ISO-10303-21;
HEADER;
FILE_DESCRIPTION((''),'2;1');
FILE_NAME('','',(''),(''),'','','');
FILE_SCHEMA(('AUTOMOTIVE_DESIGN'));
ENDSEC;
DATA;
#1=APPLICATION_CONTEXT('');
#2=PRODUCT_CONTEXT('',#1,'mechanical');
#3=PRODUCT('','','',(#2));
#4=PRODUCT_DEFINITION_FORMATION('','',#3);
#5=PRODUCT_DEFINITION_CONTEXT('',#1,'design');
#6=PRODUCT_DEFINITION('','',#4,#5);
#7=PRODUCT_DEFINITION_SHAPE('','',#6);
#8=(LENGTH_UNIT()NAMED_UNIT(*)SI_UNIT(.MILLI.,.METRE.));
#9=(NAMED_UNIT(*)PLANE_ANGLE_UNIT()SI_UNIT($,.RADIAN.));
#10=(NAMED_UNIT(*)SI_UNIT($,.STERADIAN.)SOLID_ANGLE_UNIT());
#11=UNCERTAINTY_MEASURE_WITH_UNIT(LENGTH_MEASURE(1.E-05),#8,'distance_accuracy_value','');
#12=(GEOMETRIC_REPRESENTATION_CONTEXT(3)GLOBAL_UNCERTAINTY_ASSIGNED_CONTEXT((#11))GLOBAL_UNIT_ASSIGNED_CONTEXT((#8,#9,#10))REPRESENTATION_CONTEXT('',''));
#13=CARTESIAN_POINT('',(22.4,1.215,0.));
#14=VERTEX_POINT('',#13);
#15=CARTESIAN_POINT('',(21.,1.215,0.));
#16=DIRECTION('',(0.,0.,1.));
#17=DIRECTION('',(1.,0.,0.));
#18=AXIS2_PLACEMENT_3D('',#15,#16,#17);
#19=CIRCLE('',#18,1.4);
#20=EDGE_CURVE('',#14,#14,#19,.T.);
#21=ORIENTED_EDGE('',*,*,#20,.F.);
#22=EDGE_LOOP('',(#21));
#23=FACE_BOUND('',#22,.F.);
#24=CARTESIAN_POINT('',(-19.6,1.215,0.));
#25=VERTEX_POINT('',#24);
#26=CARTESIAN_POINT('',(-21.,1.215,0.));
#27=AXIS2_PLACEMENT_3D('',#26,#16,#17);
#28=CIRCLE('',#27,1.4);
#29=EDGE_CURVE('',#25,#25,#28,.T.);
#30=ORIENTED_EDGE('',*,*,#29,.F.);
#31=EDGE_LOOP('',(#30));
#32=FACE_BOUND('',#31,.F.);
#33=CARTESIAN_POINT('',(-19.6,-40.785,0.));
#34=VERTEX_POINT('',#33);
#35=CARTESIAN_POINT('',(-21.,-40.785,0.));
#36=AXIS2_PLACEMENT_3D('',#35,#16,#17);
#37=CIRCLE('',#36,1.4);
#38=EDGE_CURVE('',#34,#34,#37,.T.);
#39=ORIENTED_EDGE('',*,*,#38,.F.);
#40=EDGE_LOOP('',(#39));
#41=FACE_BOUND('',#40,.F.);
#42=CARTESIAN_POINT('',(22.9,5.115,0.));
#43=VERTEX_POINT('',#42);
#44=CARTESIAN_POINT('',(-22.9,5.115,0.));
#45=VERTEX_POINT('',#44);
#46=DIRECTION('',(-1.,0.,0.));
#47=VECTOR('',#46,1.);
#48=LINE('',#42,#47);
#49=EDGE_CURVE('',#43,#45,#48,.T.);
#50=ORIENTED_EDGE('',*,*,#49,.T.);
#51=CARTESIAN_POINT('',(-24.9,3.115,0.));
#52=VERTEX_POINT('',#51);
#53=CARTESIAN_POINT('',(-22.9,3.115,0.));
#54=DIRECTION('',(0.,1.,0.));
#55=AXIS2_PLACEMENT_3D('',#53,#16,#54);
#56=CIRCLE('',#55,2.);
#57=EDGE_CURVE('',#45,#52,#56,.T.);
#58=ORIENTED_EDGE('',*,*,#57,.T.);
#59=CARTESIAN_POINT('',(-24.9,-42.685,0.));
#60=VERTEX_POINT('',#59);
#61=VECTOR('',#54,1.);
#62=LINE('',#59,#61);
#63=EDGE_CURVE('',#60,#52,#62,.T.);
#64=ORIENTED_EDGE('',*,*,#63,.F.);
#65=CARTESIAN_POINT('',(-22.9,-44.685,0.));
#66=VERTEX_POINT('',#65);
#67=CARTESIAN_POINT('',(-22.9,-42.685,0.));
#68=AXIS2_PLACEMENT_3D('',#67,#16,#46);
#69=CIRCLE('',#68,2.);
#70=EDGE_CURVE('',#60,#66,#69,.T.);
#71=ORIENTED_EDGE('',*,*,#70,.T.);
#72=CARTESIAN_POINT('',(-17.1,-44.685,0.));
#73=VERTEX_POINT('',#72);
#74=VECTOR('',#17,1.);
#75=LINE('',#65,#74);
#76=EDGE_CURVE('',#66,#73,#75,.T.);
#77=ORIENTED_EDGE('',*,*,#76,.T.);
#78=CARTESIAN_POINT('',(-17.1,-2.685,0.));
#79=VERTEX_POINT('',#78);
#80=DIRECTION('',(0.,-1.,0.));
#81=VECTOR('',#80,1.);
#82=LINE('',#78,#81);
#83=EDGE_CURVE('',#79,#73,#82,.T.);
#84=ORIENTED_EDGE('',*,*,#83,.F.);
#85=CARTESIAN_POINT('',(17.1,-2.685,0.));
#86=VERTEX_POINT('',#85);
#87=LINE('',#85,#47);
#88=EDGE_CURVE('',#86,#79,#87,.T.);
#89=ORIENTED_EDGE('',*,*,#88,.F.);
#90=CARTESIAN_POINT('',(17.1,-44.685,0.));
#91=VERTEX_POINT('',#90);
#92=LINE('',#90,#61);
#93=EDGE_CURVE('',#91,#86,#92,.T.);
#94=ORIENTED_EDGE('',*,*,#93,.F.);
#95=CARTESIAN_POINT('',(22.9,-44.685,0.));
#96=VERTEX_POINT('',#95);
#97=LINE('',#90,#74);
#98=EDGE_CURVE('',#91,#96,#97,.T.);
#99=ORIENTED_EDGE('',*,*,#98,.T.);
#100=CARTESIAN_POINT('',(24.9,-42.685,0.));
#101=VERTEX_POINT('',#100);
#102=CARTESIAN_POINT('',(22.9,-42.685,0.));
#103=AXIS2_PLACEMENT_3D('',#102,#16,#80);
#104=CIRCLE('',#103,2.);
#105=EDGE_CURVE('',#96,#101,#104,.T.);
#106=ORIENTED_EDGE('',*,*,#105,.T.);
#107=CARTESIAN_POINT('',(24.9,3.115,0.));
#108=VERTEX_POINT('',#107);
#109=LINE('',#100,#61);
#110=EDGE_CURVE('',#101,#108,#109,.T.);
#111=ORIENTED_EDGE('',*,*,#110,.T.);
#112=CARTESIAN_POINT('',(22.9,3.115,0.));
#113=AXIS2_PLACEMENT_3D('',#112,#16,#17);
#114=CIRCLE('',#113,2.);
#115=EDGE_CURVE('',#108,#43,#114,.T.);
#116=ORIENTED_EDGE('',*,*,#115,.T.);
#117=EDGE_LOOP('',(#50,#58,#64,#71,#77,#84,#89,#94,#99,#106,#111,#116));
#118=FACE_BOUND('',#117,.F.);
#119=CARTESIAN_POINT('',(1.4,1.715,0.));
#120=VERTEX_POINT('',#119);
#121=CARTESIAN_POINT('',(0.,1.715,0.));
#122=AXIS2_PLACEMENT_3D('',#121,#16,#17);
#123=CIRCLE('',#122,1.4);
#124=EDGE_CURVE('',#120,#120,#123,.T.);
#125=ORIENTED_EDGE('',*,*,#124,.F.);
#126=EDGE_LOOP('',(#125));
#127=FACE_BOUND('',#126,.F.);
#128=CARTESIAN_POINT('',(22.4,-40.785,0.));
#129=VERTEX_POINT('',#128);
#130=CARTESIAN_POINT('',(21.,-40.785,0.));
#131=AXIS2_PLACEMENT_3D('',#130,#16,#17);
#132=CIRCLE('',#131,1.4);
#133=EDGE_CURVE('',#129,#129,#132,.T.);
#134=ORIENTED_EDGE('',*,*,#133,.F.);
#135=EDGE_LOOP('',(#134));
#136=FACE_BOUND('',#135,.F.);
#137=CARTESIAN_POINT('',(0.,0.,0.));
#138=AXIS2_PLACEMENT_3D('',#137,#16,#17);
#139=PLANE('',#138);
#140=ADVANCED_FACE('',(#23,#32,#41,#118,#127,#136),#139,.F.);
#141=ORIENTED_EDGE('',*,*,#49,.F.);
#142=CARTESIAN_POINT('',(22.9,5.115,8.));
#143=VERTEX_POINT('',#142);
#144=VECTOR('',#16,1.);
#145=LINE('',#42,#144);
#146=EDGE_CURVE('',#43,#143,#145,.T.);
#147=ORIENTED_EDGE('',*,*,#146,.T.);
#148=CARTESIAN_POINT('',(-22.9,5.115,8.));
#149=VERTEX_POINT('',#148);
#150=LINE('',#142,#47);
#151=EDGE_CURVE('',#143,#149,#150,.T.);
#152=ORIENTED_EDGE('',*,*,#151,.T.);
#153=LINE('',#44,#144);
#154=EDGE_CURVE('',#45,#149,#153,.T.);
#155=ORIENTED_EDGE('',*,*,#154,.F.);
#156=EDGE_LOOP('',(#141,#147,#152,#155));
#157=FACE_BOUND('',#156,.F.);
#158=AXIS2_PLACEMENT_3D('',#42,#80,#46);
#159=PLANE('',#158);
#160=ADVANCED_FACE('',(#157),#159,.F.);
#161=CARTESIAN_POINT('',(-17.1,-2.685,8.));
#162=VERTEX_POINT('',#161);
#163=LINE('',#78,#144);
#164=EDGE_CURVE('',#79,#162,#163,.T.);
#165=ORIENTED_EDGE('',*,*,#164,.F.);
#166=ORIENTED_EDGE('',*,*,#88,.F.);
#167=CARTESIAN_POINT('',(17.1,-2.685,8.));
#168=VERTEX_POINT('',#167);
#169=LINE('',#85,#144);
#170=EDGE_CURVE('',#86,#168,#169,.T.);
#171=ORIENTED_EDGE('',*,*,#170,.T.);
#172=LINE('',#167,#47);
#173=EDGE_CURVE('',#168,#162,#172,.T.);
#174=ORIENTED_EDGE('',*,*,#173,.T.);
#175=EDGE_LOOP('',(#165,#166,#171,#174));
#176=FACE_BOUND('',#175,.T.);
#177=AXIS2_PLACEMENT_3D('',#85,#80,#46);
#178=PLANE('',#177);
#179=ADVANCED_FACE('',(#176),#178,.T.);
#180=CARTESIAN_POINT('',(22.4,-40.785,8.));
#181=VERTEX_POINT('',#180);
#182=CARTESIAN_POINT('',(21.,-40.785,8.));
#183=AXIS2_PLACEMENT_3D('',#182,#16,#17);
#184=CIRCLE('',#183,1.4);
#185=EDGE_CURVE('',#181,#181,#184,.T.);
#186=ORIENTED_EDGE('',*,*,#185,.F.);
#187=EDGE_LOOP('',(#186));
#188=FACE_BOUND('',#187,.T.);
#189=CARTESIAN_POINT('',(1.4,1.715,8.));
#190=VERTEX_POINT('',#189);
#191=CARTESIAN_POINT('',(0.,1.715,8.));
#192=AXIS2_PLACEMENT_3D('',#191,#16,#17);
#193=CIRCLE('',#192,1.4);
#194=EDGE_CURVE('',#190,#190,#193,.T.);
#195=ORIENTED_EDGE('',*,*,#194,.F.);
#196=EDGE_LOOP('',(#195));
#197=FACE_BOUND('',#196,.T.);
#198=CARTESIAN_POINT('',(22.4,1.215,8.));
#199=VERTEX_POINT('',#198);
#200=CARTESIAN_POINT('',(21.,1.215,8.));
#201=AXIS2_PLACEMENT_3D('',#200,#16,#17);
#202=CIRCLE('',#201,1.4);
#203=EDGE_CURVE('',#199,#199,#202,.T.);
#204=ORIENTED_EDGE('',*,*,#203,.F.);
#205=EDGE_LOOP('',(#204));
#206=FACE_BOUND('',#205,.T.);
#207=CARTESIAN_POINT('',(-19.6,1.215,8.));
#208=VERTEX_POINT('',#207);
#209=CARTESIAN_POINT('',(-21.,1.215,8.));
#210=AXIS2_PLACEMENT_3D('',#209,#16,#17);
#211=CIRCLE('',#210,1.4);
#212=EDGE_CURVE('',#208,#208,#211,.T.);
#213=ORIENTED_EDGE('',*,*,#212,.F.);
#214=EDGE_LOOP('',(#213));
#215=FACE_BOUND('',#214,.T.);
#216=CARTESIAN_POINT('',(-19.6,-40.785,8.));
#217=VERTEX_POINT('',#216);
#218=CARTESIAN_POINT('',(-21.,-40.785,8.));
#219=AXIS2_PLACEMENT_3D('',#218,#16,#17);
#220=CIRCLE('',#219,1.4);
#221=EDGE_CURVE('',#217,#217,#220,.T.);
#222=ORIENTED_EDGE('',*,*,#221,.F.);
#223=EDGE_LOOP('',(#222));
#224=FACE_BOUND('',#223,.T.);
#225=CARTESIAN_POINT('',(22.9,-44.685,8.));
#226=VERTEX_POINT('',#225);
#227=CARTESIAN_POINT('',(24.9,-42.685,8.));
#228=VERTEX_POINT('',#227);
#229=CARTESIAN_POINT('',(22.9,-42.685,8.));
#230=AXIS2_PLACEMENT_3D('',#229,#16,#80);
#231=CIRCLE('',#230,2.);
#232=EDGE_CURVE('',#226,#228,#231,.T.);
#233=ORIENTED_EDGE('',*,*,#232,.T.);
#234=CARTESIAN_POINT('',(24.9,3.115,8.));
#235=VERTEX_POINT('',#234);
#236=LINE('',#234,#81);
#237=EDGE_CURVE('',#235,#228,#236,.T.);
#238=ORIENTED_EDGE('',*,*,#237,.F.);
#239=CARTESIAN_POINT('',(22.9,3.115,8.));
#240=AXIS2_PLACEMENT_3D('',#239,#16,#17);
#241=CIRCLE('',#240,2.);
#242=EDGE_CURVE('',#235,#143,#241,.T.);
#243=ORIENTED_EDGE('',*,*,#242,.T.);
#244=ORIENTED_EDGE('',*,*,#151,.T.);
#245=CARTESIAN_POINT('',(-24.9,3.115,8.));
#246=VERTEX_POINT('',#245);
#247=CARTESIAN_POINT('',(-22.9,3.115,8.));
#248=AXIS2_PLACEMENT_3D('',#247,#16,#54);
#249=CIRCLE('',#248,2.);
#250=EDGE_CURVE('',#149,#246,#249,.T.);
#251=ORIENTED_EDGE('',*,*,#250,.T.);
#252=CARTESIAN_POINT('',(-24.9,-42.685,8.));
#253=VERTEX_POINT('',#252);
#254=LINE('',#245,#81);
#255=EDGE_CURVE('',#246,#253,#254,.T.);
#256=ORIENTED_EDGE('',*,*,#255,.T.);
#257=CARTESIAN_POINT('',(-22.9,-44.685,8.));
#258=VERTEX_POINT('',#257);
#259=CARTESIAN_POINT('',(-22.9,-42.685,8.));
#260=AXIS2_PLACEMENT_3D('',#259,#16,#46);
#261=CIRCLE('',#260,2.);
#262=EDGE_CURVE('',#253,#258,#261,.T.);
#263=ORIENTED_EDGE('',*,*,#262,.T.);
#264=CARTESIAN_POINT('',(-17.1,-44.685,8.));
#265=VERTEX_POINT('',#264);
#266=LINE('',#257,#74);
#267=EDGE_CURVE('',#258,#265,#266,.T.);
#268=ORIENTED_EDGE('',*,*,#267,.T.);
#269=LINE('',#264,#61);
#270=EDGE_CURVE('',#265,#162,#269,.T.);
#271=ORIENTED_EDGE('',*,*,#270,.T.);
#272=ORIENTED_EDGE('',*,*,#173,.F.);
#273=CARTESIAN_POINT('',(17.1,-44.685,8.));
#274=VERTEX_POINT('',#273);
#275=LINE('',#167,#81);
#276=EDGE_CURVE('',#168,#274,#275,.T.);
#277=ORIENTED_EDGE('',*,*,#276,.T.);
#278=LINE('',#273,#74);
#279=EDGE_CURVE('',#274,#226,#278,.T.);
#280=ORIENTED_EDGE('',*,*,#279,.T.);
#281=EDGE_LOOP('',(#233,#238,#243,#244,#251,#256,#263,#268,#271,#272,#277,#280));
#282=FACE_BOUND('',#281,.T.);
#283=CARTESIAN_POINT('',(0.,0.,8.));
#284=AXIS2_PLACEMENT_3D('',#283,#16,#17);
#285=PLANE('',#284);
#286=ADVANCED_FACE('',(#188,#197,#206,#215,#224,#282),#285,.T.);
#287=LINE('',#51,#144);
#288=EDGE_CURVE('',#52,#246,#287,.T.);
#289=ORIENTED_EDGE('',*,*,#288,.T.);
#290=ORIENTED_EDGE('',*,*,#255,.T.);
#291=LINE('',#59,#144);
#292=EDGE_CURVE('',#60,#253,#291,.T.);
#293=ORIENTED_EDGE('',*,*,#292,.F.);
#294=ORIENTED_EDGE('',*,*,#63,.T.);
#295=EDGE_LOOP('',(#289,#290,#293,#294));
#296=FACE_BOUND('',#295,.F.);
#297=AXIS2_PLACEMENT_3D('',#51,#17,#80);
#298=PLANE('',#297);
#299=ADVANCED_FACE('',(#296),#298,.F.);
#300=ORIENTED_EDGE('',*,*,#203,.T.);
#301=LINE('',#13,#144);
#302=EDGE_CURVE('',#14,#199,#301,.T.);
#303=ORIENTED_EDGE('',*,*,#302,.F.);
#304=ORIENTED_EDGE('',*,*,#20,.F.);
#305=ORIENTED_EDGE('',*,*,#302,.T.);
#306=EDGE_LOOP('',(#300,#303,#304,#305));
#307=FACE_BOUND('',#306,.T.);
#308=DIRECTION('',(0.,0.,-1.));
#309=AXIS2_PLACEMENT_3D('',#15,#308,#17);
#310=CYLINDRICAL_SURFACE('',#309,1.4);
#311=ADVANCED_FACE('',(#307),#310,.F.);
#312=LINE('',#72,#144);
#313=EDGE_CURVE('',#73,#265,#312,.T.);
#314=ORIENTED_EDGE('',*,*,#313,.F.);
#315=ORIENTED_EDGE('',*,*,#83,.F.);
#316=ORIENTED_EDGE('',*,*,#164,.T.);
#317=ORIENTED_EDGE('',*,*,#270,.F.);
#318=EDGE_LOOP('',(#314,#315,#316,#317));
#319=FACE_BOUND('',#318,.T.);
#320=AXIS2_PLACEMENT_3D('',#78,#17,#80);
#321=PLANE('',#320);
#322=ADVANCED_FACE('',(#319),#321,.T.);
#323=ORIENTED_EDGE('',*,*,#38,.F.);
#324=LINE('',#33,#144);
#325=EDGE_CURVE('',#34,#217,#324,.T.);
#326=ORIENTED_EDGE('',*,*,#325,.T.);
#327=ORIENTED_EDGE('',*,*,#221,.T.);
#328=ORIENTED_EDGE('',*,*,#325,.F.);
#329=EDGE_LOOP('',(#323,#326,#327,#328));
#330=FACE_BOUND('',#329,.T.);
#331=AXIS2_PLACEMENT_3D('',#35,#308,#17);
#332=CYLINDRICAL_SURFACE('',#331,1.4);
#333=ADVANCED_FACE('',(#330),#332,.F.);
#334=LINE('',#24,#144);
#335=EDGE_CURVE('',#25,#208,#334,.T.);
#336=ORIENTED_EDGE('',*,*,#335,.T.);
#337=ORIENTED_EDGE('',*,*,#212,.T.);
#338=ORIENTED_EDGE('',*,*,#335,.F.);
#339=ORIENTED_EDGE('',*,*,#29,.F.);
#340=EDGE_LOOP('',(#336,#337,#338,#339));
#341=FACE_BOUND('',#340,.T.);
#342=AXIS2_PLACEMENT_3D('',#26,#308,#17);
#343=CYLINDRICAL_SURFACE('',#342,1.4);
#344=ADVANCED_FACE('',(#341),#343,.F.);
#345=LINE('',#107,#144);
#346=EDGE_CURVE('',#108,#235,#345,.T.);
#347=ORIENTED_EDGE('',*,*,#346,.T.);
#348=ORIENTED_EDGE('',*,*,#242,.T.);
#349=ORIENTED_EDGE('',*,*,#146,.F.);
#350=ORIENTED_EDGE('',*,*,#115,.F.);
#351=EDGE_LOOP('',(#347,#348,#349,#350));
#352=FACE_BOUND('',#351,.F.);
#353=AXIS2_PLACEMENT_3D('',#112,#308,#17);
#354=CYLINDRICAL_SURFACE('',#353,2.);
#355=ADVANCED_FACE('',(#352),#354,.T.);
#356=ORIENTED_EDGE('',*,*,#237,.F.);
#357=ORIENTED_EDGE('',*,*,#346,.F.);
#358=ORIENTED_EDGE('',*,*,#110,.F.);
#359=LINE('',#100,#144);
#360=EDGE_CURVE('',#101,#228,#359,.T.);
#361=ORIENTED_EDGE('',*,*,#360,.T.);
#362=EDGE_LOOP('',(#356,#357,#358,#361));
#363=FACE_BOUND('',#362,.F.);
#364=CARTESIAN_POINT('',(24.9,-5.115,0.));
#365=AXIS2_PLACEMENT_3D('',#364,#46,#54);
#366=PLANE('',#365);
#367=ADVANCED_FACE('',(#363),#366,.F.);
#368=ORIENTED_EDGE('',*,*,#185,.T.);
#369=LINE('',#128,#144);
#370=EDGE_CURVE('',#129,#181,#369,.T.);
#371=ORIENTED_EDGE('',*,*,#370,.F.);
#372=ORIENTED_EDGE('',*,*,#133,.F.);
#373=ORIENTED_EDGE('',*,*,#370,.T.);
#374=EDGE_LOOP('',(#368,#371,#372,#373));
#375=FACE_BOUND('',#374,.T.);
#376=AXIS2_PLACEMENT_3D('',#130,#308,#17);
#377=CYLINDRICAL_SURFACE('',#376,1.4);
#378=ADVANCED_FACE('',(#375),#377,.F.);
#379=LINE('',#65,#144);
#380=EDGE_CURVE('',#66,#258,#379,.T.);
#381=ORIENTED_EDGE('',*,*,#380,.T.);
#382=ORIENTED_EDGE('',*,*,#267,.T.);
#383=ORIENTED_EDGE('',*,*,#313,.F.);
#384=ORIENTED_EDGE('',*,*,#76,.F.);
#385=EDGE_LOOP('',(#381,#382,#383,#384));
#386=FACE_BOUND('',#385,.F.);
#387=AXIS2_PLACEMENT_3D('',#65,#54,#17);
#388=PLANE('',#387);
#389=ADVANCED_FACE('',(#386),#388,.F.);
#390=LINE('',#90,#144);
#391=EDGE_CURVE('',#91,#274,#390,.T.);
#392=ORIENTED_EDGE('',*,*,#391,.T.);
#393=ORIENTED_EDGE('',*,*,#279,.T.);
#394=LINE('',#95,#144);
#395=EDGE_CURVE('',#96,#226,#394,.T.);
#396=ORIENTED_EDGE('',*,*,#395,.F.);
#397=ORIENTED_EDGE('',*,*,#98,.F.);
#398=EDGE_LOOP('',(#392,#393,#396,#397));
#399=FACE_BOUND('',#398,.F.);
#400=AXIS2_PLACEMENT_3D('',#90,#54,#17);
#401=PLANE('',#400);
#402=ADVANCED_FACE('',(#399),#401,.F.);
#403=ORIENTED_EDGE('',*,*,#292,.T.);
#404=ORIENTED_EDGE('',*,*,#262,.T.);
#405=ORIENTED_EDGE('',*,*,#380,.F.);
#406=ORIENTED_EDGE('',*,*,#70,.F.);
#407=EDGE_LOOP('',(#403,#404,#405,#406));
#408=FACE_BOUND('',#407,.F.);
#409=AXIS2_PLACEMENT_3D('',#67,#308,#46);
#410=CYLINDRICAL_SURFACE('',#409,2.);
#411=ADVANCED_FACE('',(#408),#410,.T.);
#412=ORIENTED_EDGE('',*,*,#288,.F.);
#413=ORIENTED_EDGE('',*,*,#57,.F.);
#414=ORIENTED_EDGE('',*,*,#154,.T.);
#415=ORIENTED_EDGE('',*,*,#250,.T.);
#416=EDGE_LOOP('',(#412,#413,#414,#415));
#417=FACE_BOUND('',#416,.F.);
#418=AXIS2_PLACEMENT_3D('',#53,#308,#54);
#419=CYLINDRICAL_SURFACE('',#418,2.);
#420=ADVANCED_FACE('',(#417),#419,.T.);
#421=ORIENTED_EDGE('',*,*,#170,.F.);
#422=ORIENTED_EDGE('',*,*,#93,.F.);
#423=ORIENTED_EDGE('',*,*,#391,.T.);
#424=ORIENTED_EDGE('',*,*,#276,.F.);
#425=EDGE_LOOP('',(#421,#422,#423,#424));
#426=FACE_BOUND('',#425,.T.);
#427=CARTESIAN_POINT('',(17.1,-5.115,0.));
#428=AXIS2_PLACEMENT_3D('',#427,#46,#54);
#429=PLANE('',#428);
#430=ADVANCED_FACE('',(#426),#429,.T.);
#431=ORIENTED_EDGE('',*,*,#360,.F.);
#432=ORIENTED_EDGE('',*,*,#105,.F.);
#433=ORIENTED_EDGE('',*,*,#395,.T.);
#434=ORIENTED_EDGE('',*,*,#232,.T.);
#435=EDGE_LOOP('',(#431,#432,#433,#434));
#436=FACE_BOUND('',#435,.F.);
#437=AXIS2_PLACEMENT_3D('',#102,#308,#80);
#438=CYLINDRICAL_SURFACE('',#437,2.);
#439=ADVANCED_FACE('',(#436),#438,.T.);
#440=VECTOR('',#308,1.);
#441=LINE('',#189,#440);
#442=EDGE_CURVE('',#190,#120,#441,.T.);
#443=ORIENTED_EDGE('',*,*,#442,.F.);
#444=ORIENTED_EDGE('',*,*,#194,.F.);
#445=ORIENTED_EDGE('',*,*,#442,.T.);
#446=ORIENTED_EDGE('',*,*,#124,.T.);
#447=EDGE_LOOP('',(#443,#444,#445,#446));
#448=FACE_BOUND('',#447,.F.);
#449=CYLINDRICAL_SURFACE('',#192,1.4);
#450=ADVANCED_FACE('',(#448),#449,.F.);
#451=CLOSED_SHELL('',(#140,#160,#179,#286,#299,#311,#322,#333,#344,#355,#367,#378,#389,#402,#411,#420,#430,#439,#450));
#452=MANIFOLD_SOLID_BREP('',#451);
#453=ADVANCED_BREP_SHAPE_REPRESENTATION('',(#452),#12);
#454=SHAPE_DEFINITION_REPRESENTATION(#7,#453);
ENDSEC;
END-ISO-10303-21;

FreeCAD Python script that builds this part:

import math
import FreeCAD as App
import Part
import Sketcher

V = App.Vector
Q = App.Units.Quantity

doc = App.newDocument("Part")
body = doc.addObject("PartDesign::Body", "Body")

# Sketch on XY plane
sketch1 = body.newObject("Sketcher::SketchObject", "Sketch")
sketch1.AttachmentSupport = (doc.getObject("XY_Plane"), [""])
sketch1.MapMode = "FlatFace"
sketch1.addGeometry(Part.ArcOfCircle(Part.Circle(V(22.9, 3.115, 0), V(0, 0, 1), 2), math.radians(0), math.radians(90)), False)
sketch1.addGeometry(Part.LineSegment(V(22.9, 5.115, 0), V(-22.9, 5.115, 0)), False)
sketch1.addGeometry(Part.ArcOfCircle(Part.Circle(V(-22.9, 3.115, 0), V(0, 0, 1), 2), math.radians(90), math.radians(180)), False)
sketch1.addGeometry(Part.LineSegment(V(-24.9, 3.115, 0), V(-24.9, -42.685, 0)), False)
sketch1.addGeometry(Part.ArcOfCircle(Part.Circle(V(-22.9, -42.685, 0), V(0, 0, 1), 2), math.radians(180), math.radians(270)), False)
sketch1.addGeometry(Part.LineSegment(V(-22.9, -44.685, 0), V(-17.1, -44.685, 0)), False)
sketch1.addGeometry(Part.LineSegment(V(-17.1, -44.685, 0), V(-17.1, -2.685, 0)), False)
sketch1.addGeometry(Part.LineSegment(V(-17.1, -2.685, 0), V(17.1, -2.685, 0)), False)
sketch1.addGeometry(Part.LineSegment(V(17.1, -2.685, 0), V(17.1, -44.685, 0)), False)
sketch1.addGeometry(Part.LineSegment(V(17.1, -44.685, 0), V(22.9, -44.685, 0)), False)
sketch1.addGeometry(Part.ArcOfCircle(Part.Circle(V(22.9, -42.685, 0), V(0, 0, 1), 2), math.radians(-90), math.radians(0)), False)
sketch1.addGeometry(Part.LineSegment(V(24.9, -42.685, 0), V(24.9, 3.115, 0)), False)
sketch1.addGeometry(Part.Circle(V(-21, 1.215, 0), V(0, 0, 1), 1.4), False)
sketch1.addGeometry(Part.Circle(V(21, 1.215, 0), V(0, 0, 1), 1.4), False)
sketch1.addGeometry(Part.Circle(V(21, -40.785, 0), V(0, 0, 1), 1.4), False)
sketch1.addGeometry(Part.Circle(V(-21, -40.785, 0), V(0, 0, 1), 1.4), False)
sketch1.addConstraint(Sketcher.Constraint("Tangent", 0, 2, 1, 1))
sketch1.addConstraint(Sketcher.Constraint("Tangent", 1, 2, 2, 1))
sketch1.addConstraint(Sketcher.Constraint("Tangent", 2, 2, 3, 1))
sketch1.addConstraint(Sketcher.Constraint("Tangent", 3, 2, 4, 1))
sketch1.addConstraint(Sketcher.Constraint("Tangent", 4, 2, 5, 1))
sketch1.addConstraint(Sketcher.Constraint("Coincident", 5, 2, 6, 1))
sketch1.addConstraint(Sketcher.Constraint("Coincident", 6, 2, 7, 1))
sketch1.addConstraint(Sketcher.Constraint("Coincident", 7, 2, 8, 1))
sketch1.addConstraint(Sketcher.Constraint("Coincident", 8, 2, 9, 1))
sketch1.addConstraint(Sketcher.Constraint("Tangent", 9, 2, 10, 1))
sketch1.addConstraint(Sketcher.Constraint("Tangent", 10, 2, 11, 1))
sketch1.addConstraint(Sketcher.Constraint("Tangent", 11, 2, 0, 1))
sketch1.addConstraint(Sketcher.Constraint("Horizontal", 1))
sketch1.addConstraint(Sketcher.Constraint("Vertical", 3))
sketch1.addConstraint(Sketcher.Constraint("Horizontal", 5))
sketch1.addConstraint(Sketcher.Constraint("Vertical", 6))
sketch1.addConstraint(Sketcher.Constraint("Horizontal", 7))
sketch1.addConstraint(Sketcher.Constraint("Vertical", 8))
sketch1.addConstraint(Sketcher.Constraint("Horizontal", 9))
sketch1.addConstraint(Sketcher.Constraint("Vertical", 11))
sketch1.addConstraint(Sketcher.Constraint("Equal", 0, 2))
sketch1.addConstraint(Sketcher.Constraint("Equal", 2, 4))
sketch1.addConstraint(Sketcher.Constraint("Equal", 4, 10))
sketch1.addConstraint(Sketcher.Constraint("Equal", 12, 13))
sketch1.addConstraint(Sketcher.Constraint("Equal", 13, 14))
sketch1.addConstraint(Sketcher.Constraint("Equal", 14, 15))
sketch1.addConstraint(Sketcher.Constraint("Symmetric", 4, 3, 10, 3, -2))
sketch1.addConstraint(Sketcher.Constraint("Symmetric", 12, 3, 13, 3, -2))
sketch1.addConstraint(Sketcher.Constraint("Symmetric", 14, 3, 15, 3, -2))
sketch1.addConstraint(Sketcher.Constraint("Vertical", 13, 3, 14, 3))
sketch1.addConstraint(Sketcher.Constraint("Equal", 5, 9))
sketch1.addConstraint(Sketcher.Constraint("Equal", 1, 3))
sketch1.addConstraint(Sketcher.Constraint("Radius", 0, Q("2 mm")))
sketch1.addConstraint(Sketcher.Constraint("Diameter", 12, Q("2.8 mm")))
sketch1.addConstraint(Sketcher.Constraint("DistanceX", 3, 2, 5, 2, Q("7.8 mm")))
sketch1.addConstraint(Sketcher.Constraint("DistanceY", 6, 2, 1, 2, Q("7.8 mm")))
sketch1.addConstraint(Sketcher.Constraint("DistanceY", 6, 1, 6, 2, Q("42 mm")))
sketch1.addConstraint(Sketcher.Constraint("DistanceX", 12, 3, -1, 1, Q("21 mm")))
sketch1.addConstraint(Sketcher.Constraint("DistanceY", 14, 3, 13, 3, Q("42 mm")))
sketch1.addConstraint(Sketcher.Constraint("DistanceY", 12, 3, 2, 3, Q("1.9 mm")))
sketch1.addConstraint(Sketcher.Constraint("DistanceY", -1, 1, 0, 3, Q("3.115 mm")))
pad1 = body.newObject("PartDesign::Pad", "Pad")
pad1.Profile = sketch1
pad1.Length = 8

# Sketch on XY plane
sketch2 = body.newObject("Sketcher::SketchObject", "Sketch001")
sketch2.AttachmentSupport = (doc.getObject("XY_Plane"), [""])
sketch2.MapMode = "FlatFace"
sketch2.AttachmentOffset = App.Placement(V(0, 0, 8), App.Rotation())
sketch2.addGeometry(Part.Circle(V(0, 1.715, 0), V(0, 0, 1), 1.4), False)
sketch2.addConstraint(Sketcher.Constraint("PointOnObject", 0, 3, -2))
sketch2.addConstraint(Sketcher.Constraint("Diameter", 0, Q("2.8 mm")))
sketch2.addConstraint(Sketcher.Constraint("DistanceY", -1, 1, 0, 3, Q("1.715 mm")))
pocket1 = body.newObject("PartDesign::Pocket", "Pocket")
pocket1.Profile = sketch2
pocket1.Length = 8

doc.recompute()
